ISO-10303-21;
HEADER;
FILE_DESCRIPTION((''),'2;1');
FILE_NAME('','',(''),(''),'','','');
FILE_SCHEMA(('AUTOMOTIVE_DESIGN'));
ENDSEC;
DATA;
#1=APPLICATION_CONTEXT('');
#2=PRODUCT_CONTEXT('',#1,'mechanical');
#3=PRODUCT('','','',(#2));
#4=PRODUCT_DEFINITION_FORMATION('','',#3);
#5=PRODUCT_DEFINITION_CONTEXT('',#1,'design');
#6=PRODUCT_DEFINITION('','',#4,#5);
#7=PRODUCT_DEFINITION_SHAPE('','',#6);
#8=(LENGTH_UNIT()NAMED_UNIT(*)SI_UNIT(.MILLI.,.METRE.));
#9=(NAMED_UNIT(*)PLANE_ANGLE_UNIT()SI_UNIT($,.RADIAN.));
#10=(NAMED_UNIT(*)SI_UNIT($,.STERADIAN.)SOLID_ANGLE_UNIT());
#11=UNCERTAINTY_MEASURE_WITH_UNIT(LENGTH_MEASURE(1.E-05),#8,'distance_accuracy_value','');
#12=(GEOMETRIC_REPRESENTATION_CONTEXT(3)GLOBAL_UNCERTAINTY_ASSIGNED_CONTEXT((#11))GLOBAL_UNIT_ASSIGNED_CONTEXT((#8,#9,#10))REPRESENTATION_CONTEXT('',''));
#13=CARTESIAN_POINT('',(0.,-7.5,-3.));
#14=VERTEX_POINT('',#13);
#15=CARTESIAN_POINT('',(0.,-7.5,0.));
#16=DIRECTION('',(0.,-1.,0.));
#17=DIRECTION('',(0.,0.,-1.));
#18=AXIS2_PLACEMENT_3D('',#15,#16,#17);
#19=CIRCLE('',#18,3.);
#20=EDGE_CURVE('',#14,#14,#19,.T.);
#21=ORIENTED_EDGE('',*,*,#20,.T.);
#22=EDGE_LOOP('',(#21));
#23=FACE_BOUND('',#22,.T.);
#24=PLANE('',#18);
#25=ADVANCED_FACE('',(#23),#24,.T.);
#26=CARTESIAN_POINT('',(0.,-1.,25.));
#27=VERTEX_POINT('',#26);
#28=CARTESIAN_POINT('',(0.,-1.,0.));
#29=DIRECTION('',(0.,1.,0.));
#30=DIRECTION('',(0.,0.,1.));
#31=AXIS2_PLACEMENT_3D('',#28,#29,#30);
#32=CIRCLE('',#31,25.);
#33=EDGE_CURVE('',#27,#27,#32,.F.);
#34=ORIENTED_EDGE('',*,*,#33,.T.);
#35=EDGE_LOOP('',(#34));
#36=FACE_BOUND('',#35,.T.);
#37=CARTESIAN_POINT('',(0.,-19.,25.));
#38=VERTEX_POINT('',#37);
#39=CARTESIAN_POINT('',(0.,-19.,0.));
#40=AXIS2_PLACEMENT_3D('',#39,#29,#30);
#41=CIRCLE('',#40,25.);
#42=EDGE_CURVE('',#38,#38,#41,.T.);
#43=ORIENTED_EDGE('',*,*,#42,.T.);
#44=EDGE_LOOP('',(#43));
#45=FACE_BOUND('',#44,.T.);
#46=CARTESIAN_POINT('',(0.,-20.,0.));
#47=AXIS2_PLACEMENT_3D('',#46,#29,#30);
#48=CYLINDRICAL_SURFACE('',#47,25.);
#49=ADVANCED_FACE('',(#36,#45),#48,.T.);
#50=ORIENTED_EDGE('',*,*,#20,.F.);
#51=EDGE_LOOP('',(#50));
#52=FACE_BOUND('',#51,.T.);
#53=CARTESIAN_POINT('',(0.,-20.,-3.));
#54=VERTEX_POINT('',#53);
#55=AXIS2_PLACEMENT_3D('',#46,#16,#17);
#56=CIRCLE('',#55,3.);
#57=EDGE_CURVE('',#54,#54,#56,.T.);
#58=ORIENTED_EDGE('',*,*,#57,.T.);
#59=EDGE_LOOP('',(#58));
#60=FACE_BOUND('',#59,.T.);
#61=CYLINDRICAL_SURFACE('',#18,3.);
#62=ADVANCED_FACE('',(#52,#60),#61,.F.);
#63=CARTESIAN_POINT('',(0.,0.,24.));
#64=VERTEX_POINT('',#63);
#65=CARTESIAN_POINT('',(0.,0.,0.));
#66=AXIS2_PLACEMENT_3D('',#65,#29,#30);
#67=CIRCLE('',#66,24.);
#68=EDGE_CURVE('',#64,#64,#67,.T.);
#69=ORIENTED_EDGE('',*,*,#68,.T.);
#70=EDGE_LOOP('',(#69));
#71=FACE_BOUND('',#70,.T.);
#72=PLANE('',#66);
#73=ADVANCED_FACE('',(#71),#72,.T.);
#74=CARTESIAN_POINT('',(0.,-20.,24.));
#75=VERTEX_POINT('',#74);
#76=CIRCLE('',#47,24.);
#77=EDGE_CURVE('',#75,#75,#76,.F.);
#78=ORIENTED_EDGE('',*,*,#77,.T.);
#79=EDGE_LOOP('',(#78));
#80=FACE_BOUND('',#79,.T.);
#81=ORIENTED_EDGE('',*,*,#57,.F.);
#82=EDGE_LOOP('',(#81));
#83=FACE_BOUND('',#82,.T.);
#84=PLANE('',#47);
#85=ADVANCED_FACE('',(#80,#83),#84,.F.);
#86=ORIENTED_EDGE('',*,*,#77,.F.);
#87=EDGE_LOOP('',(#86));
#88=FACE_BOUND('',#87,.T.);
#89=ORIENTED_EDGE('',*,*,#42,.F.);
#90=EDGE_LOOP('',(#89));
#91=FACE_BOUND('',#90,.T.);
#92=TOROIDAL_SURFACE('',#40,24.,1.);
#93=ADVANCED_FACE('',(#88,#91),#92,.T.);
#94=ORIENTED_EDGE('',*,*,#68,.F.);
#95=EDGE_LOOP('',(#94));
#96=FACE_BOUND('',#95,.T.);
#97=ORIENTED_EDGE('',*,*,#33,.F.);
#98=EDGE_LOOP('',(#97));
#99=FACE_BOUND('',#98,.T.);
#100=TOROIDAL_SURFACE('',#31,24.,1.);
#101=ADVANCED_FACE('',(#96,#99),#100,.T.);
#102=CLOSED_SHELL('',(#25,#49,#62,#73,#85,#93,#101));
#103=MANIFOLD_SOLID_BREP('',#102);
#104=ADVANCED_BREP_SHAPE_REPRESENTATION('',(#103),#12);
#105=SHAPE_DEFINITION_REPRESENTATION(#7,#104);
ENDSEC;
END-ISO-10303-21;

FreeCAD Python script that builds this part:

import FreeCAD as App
import Part
import Sketcher
from FreeCAD import Vector


def edges_at(feature, points):
    """Names of the edges that pass closest to the given points."""
    edges = feature.Shape.Edges
    near = lambda p: min(range(len(edges)), key=lambda i: edges[i].distToShape(Part.Vertex(*p))[0])
    return sorted({f"Edge{near(p) + 1}" for p in points})

doc = App.newDocument("Part")
body = doc.addObject("PartDesign::Body", "Body")

sketch1 = doc.addObject("Sketcher::SketchObject", "Sketch")
body.addObject(sketch1)
sketch1.AttachmentSupport = (doc.XZ_Plane, [""])
sketch1.MapMode = "FlatFace"
sketch1.addGeometry(Part.Circle(Vector(0, 0, 0), Vector(0, 0, 1), 25), False)
sketch1.addConstraint(Sketcher.Constraint("Coincident", 0, 3, -1, 1))
sketch1.addConstraint(Sketcher.Constraint("Diameter", 0, 50.0))
pad1 = doc.addObject("PartDesign::Pad", "Pad")
body.addObject(pad1)
pad1.Profile = sketch1
pad1.Length = 20
doc.recompute()

fillet = doc.addObject("PartDesign::Fillet", "Fillet")
body.addObject(fillet)
fillet.Base = (pad1, edges_at(pad1, [(0, 0, -25), (0, -20, -25)]))
fillet.Radius = 1

sketch2 = doc.addObject("Sketcher::SketchObject", "Sketch001")
body.addObject(sketch2)
sketch2.AttachmentSupport = (doc.XZ_Plane, [""])
sketch2.MapMode = "FlatFace"
sketch2.AttachmentOffset = App.Placement(Vector(0, 0, 20), App.Rotation())
sketch2.addGeometry(Part.Circle(Vector(0, 0, 0), Vector(0, 0, 1), 3), False)
sketch2.addConstraint(Sketcher.Constraint("Coincident", 0, 3, -1, 1))
sketch2.addConstraint(Sketcher.Constraint("Diameter", 0, 6.0))
pocket1 = doc.addObject("PartDesign::Pocket", "Pocket")
body.addObject(pocket1)
pocket1.Profile = sketch2
pocket1.Length = 12.5

doc.recompute()
